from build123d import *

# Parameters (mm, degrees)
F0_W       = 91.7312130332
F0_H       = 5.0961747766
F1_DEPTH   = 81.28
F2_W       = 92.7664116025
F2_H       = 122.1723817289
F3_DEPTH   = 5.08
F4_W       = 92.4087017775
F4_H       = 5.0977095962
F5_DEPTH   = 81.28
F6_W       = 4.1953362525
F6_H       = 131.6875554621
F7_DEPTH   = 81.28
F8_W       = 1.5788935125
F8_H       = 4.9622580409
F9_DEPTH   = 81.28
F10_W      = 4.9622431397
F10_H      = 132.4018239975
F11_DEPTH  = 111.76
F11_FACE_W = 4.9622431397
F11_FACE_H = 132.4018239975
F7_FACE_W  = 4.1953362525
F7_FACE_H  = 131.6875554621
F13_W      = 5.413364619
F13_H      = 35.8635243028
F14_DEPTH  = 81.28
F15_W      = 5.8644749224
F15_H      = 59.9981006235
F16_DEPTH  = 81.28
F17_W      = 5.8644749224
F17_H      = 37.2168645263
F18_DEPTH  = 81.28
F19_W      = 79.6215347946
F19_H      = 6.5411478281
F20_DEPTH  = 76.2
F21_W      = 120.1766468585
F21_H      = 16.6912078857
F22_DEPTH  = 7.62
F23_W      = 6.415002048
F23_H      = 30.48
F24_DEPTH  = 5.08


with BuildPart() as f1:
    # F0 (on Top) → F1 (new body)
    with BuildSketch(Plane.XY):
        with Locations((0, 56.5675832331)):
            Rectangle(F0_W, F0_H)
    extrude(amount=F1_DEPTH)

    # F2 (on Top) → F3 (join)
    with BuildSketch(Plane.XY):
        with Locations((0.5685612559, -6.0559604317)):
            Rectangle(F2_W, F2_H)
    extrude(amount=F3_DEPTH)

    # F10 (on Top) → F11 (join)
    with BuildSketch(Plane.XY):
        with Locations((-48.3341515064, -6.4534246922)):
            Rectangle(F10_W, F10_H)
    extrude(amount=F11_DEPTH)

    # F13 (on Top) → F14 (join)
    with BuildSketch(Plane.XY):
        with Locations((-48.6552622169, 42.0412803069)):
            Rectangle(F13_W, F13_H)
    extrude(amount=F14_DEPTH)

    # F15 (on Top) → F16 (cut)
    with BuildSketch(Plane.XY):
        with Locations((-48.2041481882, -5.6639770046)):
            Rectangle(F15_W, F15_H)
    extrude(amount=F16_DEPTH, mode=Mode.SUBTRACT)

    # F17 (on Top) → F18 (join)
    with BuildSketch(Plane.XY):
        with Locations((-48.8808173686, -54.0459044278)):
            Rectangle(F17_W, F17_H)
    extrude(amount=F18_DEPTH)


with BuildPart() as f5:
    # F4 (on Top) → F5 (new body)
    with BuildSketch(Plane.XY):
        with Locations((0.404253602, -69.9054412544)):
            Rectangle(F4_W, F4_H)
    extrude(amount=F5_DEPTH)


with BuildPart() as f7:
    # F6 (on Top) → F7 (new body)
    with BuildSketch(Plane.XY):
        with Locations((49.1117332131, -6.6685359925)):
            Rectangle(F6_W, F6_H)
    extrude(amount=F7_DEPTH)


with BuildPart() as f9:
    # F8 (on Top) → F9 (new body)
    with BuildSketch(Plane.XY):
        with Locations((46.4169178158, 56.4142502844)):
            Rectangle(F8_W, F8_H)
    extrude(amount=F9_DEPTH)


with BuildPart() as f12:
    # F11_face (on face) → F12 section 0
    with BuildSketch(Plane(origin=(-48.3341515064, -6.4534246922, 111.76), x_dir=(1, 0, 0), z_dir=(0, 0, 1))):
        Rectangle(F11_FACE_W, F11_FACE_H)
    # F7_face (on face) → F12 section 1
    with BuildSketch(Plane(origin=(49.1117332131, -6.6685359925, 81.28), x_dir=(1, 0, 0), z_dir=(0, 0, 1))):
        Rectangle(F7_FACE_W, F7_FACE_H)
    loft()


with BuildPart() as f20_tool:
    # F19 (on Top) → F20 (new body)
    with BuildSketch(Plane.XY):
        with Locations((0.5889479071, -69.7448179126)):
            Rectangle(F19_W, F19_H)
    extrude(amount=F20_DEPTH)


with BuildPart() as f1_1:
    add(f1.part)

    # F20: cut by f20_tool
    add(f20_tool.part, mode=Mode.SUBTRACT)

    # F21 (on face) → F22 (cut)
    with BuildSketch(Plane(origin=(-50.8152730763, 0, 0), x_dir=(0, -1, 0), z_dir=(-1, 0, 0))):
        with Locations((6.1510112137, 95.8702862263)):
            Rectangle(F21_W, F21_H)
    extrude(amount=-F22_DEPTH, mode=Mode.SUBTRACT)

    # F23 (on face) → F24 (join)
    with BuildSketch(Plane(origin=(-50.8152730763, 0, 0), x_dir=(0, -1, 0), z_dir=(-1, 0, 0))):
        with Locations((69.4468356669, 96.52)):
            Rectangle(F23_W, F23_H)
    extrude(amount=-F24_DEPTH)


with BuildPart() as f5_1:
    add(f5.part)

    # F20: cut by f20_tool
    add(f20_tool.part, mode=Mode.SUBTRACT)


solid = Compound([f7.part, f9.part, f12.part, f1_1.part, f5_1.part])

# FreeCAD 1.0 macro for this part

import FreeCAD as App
import Part
import Sketcher
Q = App.Units.Quantity

doc = App.newDocument("Part")
body = doc.addObject("PartDesign::Body", "Body")

sketch1 = body.newObject("Sketcher::SketchObject", "Sketch")
sketch1.AttachmentSupport = (doc.getObject("XY_Plane"), [""])
sketch1.MapMode = "FlatFace"
sketch1.addGeometry(Part.LineSegment(App.Vector(-46, 59, 0), App.Vector(-46, 54, 0)), False)
sketch1.addGeometry(Part.LineSegment(App.Vector(-46, 54, 0), App.Vector(46, 54, 0)), False)
sketch1.addGeometry(Part.LineSegment(App.Vector(46, 54, 0), App.Vector(46, 59, 0)), False)
sketch1.addGeometry(Part.LineSegment(App.Vector(46, 59, 0), App.Vector(-46, 59, 0)), False)
sketch1.addConstraint(Sketcher.Constraint("Coincident", 0, 2, 1, 1))
sketch1.addConstraint(Sketcher.Constraint("Coincident", 1, 2, 2, 1))
sketch1.addConstraint(Sketcher.Constraint("Coincident", 2, 2, 3, 1))
sketch1.addConstraint(Sketcher.Constraint("Coincident", 3, 2, 0, 1))
sketch1.addConstraint(Sketcher.Constraint("Vertical", 0))
sketch1.addConstraint(Sketcher.Constraint("Horizontal", 1))
sketch1.addConstraint(Sketcher.Constraint("Vertical", 2))
sketch1.addConstraint(Sketcher.Constraint("Horizontal", 3))
sketch1.addConstraint(Sketcher.Constraint("DistanceX", 1, 1, 1, 2, Q("91.731213 mm")))
sketch1.addConstraint(Sketcher.Constraint("DistanceY", 0, 2, 0, 1, Q("5.096175 mm")))
sketch1.addConstraint(Sketcher.Constraint("DistanceY", -1, 1, 2, 2, Q("59.115671 mm")))
sketch1.addConstraint(Sketcher.Constraint("DistanceX", 0, 2, -1, 1, Q("45.865607 mm")))
pad1 = body.newObject("PartDesign::Pad", "Pad")
pad1.Profile = sketch1
pad1.Length = Q("3.2 in")

sketch2 = body.newObject("Sketcher::SketchObject", "Sketch001")
sketch2.AttachmentSupport = (doc.getObject("XY_Plane"), [""])
sketch2.MapMode = "FlatFace"
sketch2.addGeometry(Part.LineSegment(App.Vector(-46, 55, 0), App.Vector(-46, -67, 0)), False)
sketch2.addGeometry(Part.LineSegment(App.Vector(-46, -67, 0), App.Vector(47, -67, 0)), False)
sketch2.addGeometry(Part.LineSegment(App.Vector(47, -67, 0), App.Vector(47, 55, 0)), False)
sketch2.addGeometry(Part.LineSegment(App.Vector(47, 55, 0), App.Vector(-46, 55, 0)), False)
sketch2.addConstraint(Sketcher.Constraint("Coincident", 0, 2, 1, 1))
sketch2.addConstraint(Sketcher.Constraint("Coincident", 1, 2, 2, 1))
sketch2.addConstraint(Sketcher.Constraint("Coincident", 2, 2, 3, 1))
sketch2.addConstraint(Sketcher.Constraint("Coincident", 3, 2, 0, 1))
sketch2.addConstraint(Sketcher.Constraint("Vertical", 0))
sketch2.addConstraint(Sketcher.Constraint("Horizontal", 1))
sketch2.addConstraint(Sketcher.Constraint("Vertical", 2))
sketch2.addConstraint(Sketcher.Constraint("Horizontal", 3))
sketch2.addConstraint(Sketcher.Constraint("DistanceX", 1, 1, 1, 2, Q("92.766412 mm")))
sketch2.addConstraint(Sketcher.Constraint("DistanceY", 0, 2, 0, 1, Q("122.172382 mm")))
sketch2.addConstraint(Sketcher.Constraint("DistanceY", 0, 2, -1, 1, Q("67.142151 mm")))
sketch2.addConstraint(Sketcher.Constraint("DistanceX", 0, 2, -1, 1, Q("45.814645 mm")))
pad2 = body.newObject("PartDesign::Pad", "Pad001")
pad2.Profile = sketch2
pad2.Length = Q("0.2 in")

sketch3 = body.newObject("Sketcher::SketchObject", "Sketch002")
sketch3.AttachmentSupport = (doc.getObject("XY_Plane"), [""])
sketch3.MapMode = "FlatFace"
sketch3.addGeometry(Part.LineSegment(App.Vector(-50.8, 59.7, 0), App.Vector(-50.8, -72.7, 0)), False)
sketch3.addGeometry(Part.LineSegment(App.Vector(-50.8, -72.7, 0), App.Vector(-45.9, -72.7, 0)), False)
sketch3.addGeometry(Part.LineSegment(App.Vector(-45.9, -72.7, 0), App.Vector(-45.9, 59.7, 0)), False)
sketch3.addGeometry(Part.LineSegment(App.Vector(-45.9, 59.7, 0), App.Vector(-50.8, 59.7, 0)), False)
sketch3.addConstraint(Sketcher.Constraint("Coincident", 0, 2, 1, 1))
sketch3.addConstraint(Sketcher.Constraint("Coincident", 1, 2, 2, 1))
sketch3.addConstraint(Sketcher.Constraint("Coincident", 2, 2, 3, 1))
sketch3.addConstraint(Sketcher.Constraint("Coincident", 3, 2, 0, 1))
sketch3.addConstraint(Sketcher.Constraint("Vertical", 0))
sketch3.addConstraint(Sketcher.Constraint("Horizontal", 1))
sketch3.addConstraint(Sketcher.Constraint("Vertical", 2))
sketch3.addConstraint(Sketcher.Constraint("Horizontal", 3))
sketch3.addConstraint(Sketcher.Constraint("DistanceX", 1, 1, 1, 2, Q("4.962243 mm")))
sketch3.addConstraint(Sketcher.Constraint("DistanceY", 0, 2, 0, 1, Q("132.401824 mm")))
sketch3.addConstraint(Sketcher.Constraint("DistanceX", 1, 2, -1, 1, Q("45.85303 mm")))
sketch3.addConstraint(Sketcher.Constraint("DistanceY", 0, 2, -1, 1, Q("72.654337 mm")))
pad3 = body.newObject("PartDesign::Pad", "Pad002")
pad3.Profile = sketch3
pad3.Length = Q("4.4 in")

sketch4 = body.newObject("Sketcher::SketchObject", "Sketch003")
sketch4.AttachmentSupport = (doc.getObject("XY_Plane"), [""])
sketch4.MapMode = "FlatFace"
sketch4.addGeometry(Part.LineSegment(App.Vector(-51, 60, 0), App.Vector(-51, 24, 0)), False)
sketch4.addGeometry(Part.LineSegment(App.Vector(-51, 24, 0), App.Vector(-46, 24, 0)), False)
sketch4.addGeometry(Part.LineSegment(App.Vector(-46, 24, 0), App.Vector(-46, 60, 0)), False)
sketch4.addGeometry(Part.LineSegment(App.Vector(-46, 60, 0), App.Vector(-51, 60, 0)), False)
sketch4.addConstraint(Sketcher.Constraint("Coincident", 0, 2, 1, 1))
sketch4.addConstraint(Sketcher.Constraint("Coincident", 1, 2, 2, 1))
sketch4.addConstraint(Sketcher.Constraint("Coincident", 2, 2, 3, 1))
sketch4.addConstraint(Sketcher.Constraint("Coincident", 3, 2, 0, 1))
sketch4.addConstraint(Sketcher.Constraint("Vertical", 0))
sketch4.addConstraint(Sketcher.Constraint("Horizontal", 1))
sketch4.addConstraint(Sketcher.Constraint("Vertical", 2))
sketch4.addConstraint(Sketcher.Constraint("Horizontal", 3))
sketch4.addConstraint(Sketcher.Constraint("DistanceX", 1, 1, 1, 2, Q("5.413365 mm")))
sketch4.addConstraint(Sketcher.Constraint("DistanceY", 0, 2, 0, 1, Q("35.863524 mm")))
sketch4.addConstraint(Sketcher.Constraint("DistanceY", -1, 1, 0, 2, Q("24.109518 mm")))
sketch4.addConstraint(Sketcher.Constraint("DistanceX", 1, 2, -1, 1, Q("45.94858 mm")))
pad4 = body.newObject("PartDesign::Pad", "Pad003")
pad4.Profile = sketch4
pad4.Length = Q("3.2 in")

sketch5 = body.newObject("Sketcher::SketchObject", "Sketch004")
sketch5.AttachmentSupport = (doc.getObject("XY_Plane"), [""])
sketch5.MapMode = "FlatFace"
sketch5.addGeometry(Part.LineSegment(App.Vector(-51, 24, 0), App.Vector(-51, -36, 0)), False)
sketch5.addGeometry(Part.LineSegment(App.Vector(-51, -36, 0), App.Vector(-45, -36, 0)), False)
sketch5.addGeometry(Part.LineSegment(App.Vector(-45, -36, 0), App.Vector(-45, 24, 0)), False)
sketch5.addGeometry(Part.LineSegment(App.Vector(-45, 24, 0), App.Vector(-51, 24, 0)), False)
sketch5.addConstraint(Sketcher.Constraint("Coincident", 0, 2, 1, 1))
sketch5.addConstraint(Sketcher.Constraint("Coincident", 1, 2, 2, 1))
sketch5.addConstraint(Sketcher.Constraint("Coincident", 2, 2, 3, 1))
sketch5.addConstraint(Sketcher.Constraint("Coincident", 3, 2, 0, 1))
sketch5.addConstraint(Sketcher.Constraint("Vertical", 0))
sketch5.addConstraint(Sketcher.Constraint("Horizontal", 1))
sketch5.addConstraint(Sketcher.Constraint("Vertical", 2))
sketch5.addConstraint(Sketcher.Constraint("Horizontal", 3))
sketch5.addConstraint(Sketcher.Constraint("DistanceY", 0, 2, 0, 1, Q("59.998101 mm")))
sketch5.addConstraint(Sketcher.Constraint("DistanceX", 1, 1, 1, 2, Q("5.864475 mm")))
sketch5.addConstraint(Sketcher.Constraint("DistanceX", 1, 2, -1, 1, Q("45.271911 mm")))
sketch5.addConstraint(Sketcher.Constraint("DistanceY", 0, 2, -1, 1, Q("35.663027 mm")))
pocket1 = body.newObject("PartDesign::Pocket", "Pocket")
pocket1.Profile = sketch5
pocket1.Length = Q("3.2 in")
pocket1.Reversed = True

sketch6 = body.newObject("Sketcher::SketchObject", "Sketch005")
sketch6.AttachmentSupport = (doc.getObject("XY_Plane"), [""])
sketch6.MapMode = "FlatFace"
sketch6.addGeometry(Part.LineSegment(App.Vector(-52, -35, 0), App.Vector(-52, -73, 0)), False)
sketch6.addGeometry(Part.LineSegment(App.Vector(-52, -73, 0), App.Vector(-46, -73, 0)), False)
sketch6.addGeometry(Part.LineSegment(App.Vector(-46, -73, 0), App.Vector(-46, -35, 0)), False)
sketch6.addGeometry(Part.LineSegment(App.Vector(-46, -35, 0), App.Vector(-52, -35, 0)), False)
sketch6.addConstraint(Sketcher.Constraint("Coincident", 0, 2, 1, 1))
sketch6.addConstraint(Sketcher.Constraint("Coincident", 1, 2, 2, 1))
sketch6.addConstraint(Sketcher.Constraint("Coincident", 2, 2, 3, 1))
sketch6.addConstraint(Sketcher.Constraint("Coincident", 3, 2, 0, 1))
sketch6.addConstraint(Sketcher.Constraint("Vertical", 0))
sketch6.addConstraint(Sketcher.Constraint("Horizontal", 1))
sketch6.addConstraint(Sketcher.Constraint("Vertical", 2))
sketch6.addConstraint(Sketcher.Constraint("Horizontal", 3))
sketch6.addConstraint(Sketcher.Constraint("DistanceX", 1, 1, 1, 2, Q("5.864475 mm")))
sketch6.addConstraint(Sketcher.Constraint("DistanceY", 0, 2, 0, 1, Q("37.216865 mm")))
sketch6.addConstraint(Sketcher.Constraint("DistanceX", 1, 2, -1, 1, Q("45.94858 mm")))
sketch6.addConstraint(Sketcher.Constraint("DistanceY", 0, 2, -1, 1, Q("72.654337 mm")))
pad5 = body.newObject("PartDesign::Pad", "Pad004")
pad5.Profile = sketch6
pad5.Length = Q("3.2 in")
body2 = doc.addObject("PartDesign::Body", "Body001")

sketch7 = body2.newObject("Sketcher::SketchObject", "Sketch006")
sketch7.AttachmentSupport = (doc.getObject("XY_Plane001"), [""])
sketch7.MapMode = "FlatFace"
sketch7.addGeometry(Part.LineSegment(App.Vector(-46, -67, 0), App.Vector(-46, -72, 0)), False)
sketch7.addGeometry(Part.LineSegment(App.Vector(-46, -72, 0), App.Vector(47, -72, 0)), False)
sketch7.addGeometry(Part.LineSegment(App.Vector(47, -72, 0), App.Vector(47, -67, 0)), False)
sketch7.addGeometry(Part.LineSegment(App.Vector(47, -67, 0), App.Vector(-46, -67, 0)), False)
sketch7.addConstraint(Sketcher.Constraint("Coincident", 0, 2, 1, 1))
sketch7.addConstraint(Sketcher.Constraint("Coincident", 1, 2, 2, 1))
sketch7.addConstraint(Sketcher.Constraint("Coincident", 2, 2, 3, 1))
sketch7.addConstraint(Sketcher.Constraint("Coincident", 3, 2, 0, 1))
sketch7.addConstraint(Sketcher.Constraint("Vertical", 0))
sketch7.addConstraint(Sketcher.Constraint("Horizontal", 1))
sketch7.addConstraint(Sketcher.Constraint("Vertical", 2))
sketch7.addConstraint(Sketcher.Constraint("Horizontal", 3))
sketch7.addConstraint(Sketcher.Constraint("DistanceX", 1, 1, 1, 2, Q("92.408702 mm")))
sketch7.addConstraint(Sketcher.Constraint("DistanceY", 0, 2, 0, 1, Q("5.09771 mm")))
sketch7.addConstraint(Sketcher.Constraint("DistanceX", 0, 2, -1, 1, Q("45.800097 mm")))
sketch7.addConstraint(Sketcher.Constraint("DistanceY", 0, 2, -1, 1, Q("72.454296 mm")))
pad6 = body2.newObject("PartDesign::Pad", "Pad005")
pad6.Profile = sketch7
pad6.Length = Q("3.2 in")
body3 = doc.addObject("PartDesign::Body", "Body002")

sketch8 = body3.newObject("Sketcher::SketchObject", "Sketch007")
sketch8.AttachmentSupport = (doc.getObject("XY_Plane002"), [""])
sketch8.MapMode = "FlatFace"
sketch8.addGeometry(Part.LineSegment(App.Vector(47, 59.2, 0), App.Vector(47, -72.5, 0)), False)
sketch8.addGeometry(Part.LineSegment(App.Vector(47, -72.5, 0), App.Vector(51.2, -72.5, 0)), False)
sketch8.addGeometry(Part.LineSegment(App.Vector(51.2, -72.5, 0), App.Vector(51.2, 59.2, 0)), False)
sketch8.addGeometry(Part.LineSegment(App.Vector(51.2, 59.2, 0), App.Vector(47, 59.2, 0)), False)
sketch8.addConstraint(Sketcher.Constraint("Coincident", 0, 2, 1, 1))
sketch8.addConstraint(Sketcher.Constraint("Coincident", 1, 2, 2, 1))
sketch8.addConstraint(Sketcher.Constraint("Coincident", 2, 2, 3, 1))
sketch8.addConstraint(Sketcher.Constraint("Coincident", 3, 2, 0, 1))
sketch8.addConstraint(Sketcher.Constraint("Vertical", 0))
sketch8.addConstraint(Sketcher.Constraint("Horizontal", 1))
sketch8.addConstraint(Sketcher.Constraint("Vertical", 2))
sketch8.addConstraint(Sketcher.Constraint("Horizontal", 3))
sketch8.addConstraint(Sketcher.Constraint("DistanceX", -1, 1, 1, 2, Q("51.209401 mm")))
sketch8.addConstraint(Sketcher.Constraint("DistanceX", 1, 1, 1, 2, Q("4.195336 mm")))
sketch8.addConstraint(Sketcher.Constraint("DistanceY", 0, 2, 0, 1, Q("131.687555 mm")))
sketch8.addConstraint(Sketcher.Constraint("DistanceY", -1, 1, 2, 2, Q("59.175242 mm")))
pad7 = body3.newObject("PartDesign::Pad", "Pad006")
pad7.Profile = sketch8
pad7.Length = Q("3.2 in")
body4 = doc.addObject("PartDesign::Body", "Body003")

sketch9 = body4.newObject("Sketcher::SketchObject", "Sketch008")
sketch9.AttachmentSupport = (doc.getObject("XY_Plane003"), [""])
sketch9.MapMode = "FlatFace"
sketch9.addGeometry(Part.LineSegment(App.Vector(45.6, 58.9, 0), App.Vector(45.6, 53.9, 0)), False)
sketch9.addGeometry(Part.LineSegment(App.Vector(45.6, 53.9, 0), App.Vector(47.2, 53.9, 0)), False)
sketch9.addGeometry(Part.LineSegment(App.Vector(47.2, 53.9, 0), App.Vector(47.2, 58.9, 0)), False)
sketch9.addGeometry(Part.LineSegment(App.Vector(47.2, 58.9, 0), App.Vector(45.6, 58.9, 0)), False)
sketch9.addConstraint(Sketcher.Constraint("Coincident", 0, 2, 1, 1))
sketch9.addConstraint(Sketcher.Constraint("Coincident", 1, 2, 2, 1))
sketch9.addConstraint(Sketcher.Constraint("Coincident", 2, 2, 3, 1))
sketch9.addConstraint(Sketcher.Constraint("Coincident", 3, 2, 0, 1))
sketch9.addConstraint(Sketcher.Constraint("Vertical", 0))
sketch9.addConstraint(Sketcher.Constraint("Horizontal", 1))
sketch9.addConstraint(Sketcher.Constraint("Vertical", 2))
sketch9.addConstraint(Sketcher.Constraint("Horizontal", 3))
sketch9.addConstraint(Sketcher.Constraint("DistanceY", 0, 2, 0, 1, Q("4.962258 mm")))
sketch9.addConstraint(Sketcher.Constraint("DistanceX", 1, 1, 1, 2, Q("1.578894 mm")))
sketch9.addConstraint(Sketcher.Constraint("DistanceX", -1, 1, 0, 2, Q("45.627471 mm")))
sketch9.addConstraint(Sketcher.Constraint("DistanceY", -1, 1, 0, 2, Q("53.933121 mm")))
pad8 = body4.newObject("PartDesign::Pad", "Pad007")
pad8.Profile = sketch9
pad8.Length = Q("3.2 in")
body5 = doc.addObject("PartDesign::Body", "Body004")

sketch10 = body5.newObject("Sketcher::SketchObject", "Sketch009")
sketch10.AttachmentSupport = (doc.getObject("XY_Plane004"), [""])
sketch10.MapMode = "FlatFace"
sketch10.AttachmentOffset = App.Placement(App.Vector(0, 0, 4.4 * 25.4), App.Rotation())
sketch10.addGeometry(Part.LineSegment(App.Vector(-50.8, 59.7, 0), App.Vector(-50.8, -72.7, 0)), False)
sketch10.addGeometry(Part.LineSegment(App.Vector(-50.8, -72.7, 0), App.Vector(-45.9, -72.7, 0)), False)
sketch10.addGeometry(Part.LineSegment(App.Vector(-45.9, -72.7, 0), App.Vector(-45.9, 59.7, 0)), False)
sketch10.addGeometry(Part.LineSegment(App.Vector(-45.9, 59.7, 0), App.Vector(-50.8, 59.7, 0)), False)
sketch10.addConstraint(Sketcher.Constraint("Coincident", 0, 2, 1, 1))
sketch10.addConstraint(Sketcher.Constraint("Coincident", 1, 2, 2, 1))
sketch10.addConstraint(Sketcher.Constraint("Coincident", 2, 2, 3, 1))
sketch10.addConstraint(Sketcher.Constraint("Coincident", 3, 2, 0, 1))
sketch10.addConstraint(Sketcher.Constraint("Vertical", 0))
sketch10.addConstraint(Sketcher.Constraint("Horizontal", 1))
sketch10.addConstraint(Sketcher.Constraint("Vertical", 2))
sketch10.addConstraint(Sketcher.Constraint("Horizontal", 3))
sketch10.addConstraint(Sketcher.Constraint("DistanceX", 1, 1, 1, 2, Q("4.962243 mm")))
sketch10.addConstraint(Sketcher.Constraint("DistanceY", 0, 2, 0, 1, Q("132.401824 mm")))
sketch10.addConstraint(Sketcher.Constraint("DistanceX", 1, 2, -1, 1, Q("45.85303 mm")))
sketch10.addConstraint(Sketcher.Constraint("DistanceY", 0, 2, -1, 1, Q("72.654337 mm")))

sketch11 = body5.newObject("Sketcher::SketchObject", "Sketch010")
sketch11.AttachmentSupport = (doc.getObject("XY_Plane004"), [""])
sketch11.MapMode = "FlatFace"
sketch11.AttachmentOffset = App.Placement(App.Vector(0, 0, 3.2 * 25.4), App.Rotation())
sketch11.addGeometry(Part.LineSegment(App.Vector(47, 59.2, 0), App.Vector(47, -72.5, 0)), False)
sketch11.addGeometry(Part.LineSegment(App.Vector(47, -72.5, 0), App.Vector(51.2, -72.5, 0)), False)
sketch11.addGeometry(Part.LineSegment(App.Vector(51.2, -72.5, 0), App.Vector(51.2, 59.2, 0)), False)
sketch11.addGeometry(Part.LineSegment(App.Vector(51.2, 59.2, 0), App.Vector(47, 59.2, 0)), False)
sketch11.addConstraint(Sketcher.Constraint("Coincident", 0, 2, 1, 1))
sketch11.addConstraint(Sketcher.Constraint("Coincident", 1, 2, 2, 1))
sketch11.addConstraint(Sketcher.Constraint("Coincident", 2, 2, 3, 1))
sketch11.addConstraint(Sketcher.Constraint("Coincident", 3, 2, 0, 1))
sketch11.addConstraint(Sketcher.Constraint("Vertical", 0))
sketch11.addConstraint(Sketcher.Constraint("Horizontal", 1))
sketch11.addConstraint(Sketcher.Constraint("Vertical", 2))
sketch11.addConstraint(Sketcher.Constraint("Horizontal", 3))
sketch11.addConstraint(Sketcher.Constraint("DistanceX", -1, 1, 1, 2, Q("51.209401 mm")))
sketch11.addConstraint(Sketcher.Constraint("DistanceX", 1, 1, 1, 2, Q("4.195336 mm")))
sketch11.addConstraint(Sketcher.Constraint("DistanceY", 0, 2, 0, 1, Q("131.687555 mm")))
sketch11.addConstraint(Sketcher.Constraint("DistanceY", -1, 1, 2, 2, Q("59.175242 mm")))

additiveloft = body5.newObject("PartDesign::AdditiveLoft", "AdditiveLoft")
additiveloft.Profile = sketch10
additiveloft.Sections = [sketch11]
body6 = doc.addObject("PartDesign::Body", "Body005")

sketch12 = body6.newObject("Sketcher::SketchObject", "Sketch011")
sketch12.AttachmentSupport = (doc.getObject("XY_Plane005"), [""])
sketch12.MapMode = "FlatFace"
sketch12.addGeometry(Part.LineSegment(App.Vector(-39, -66, 0), App.Vector(-39, -73, 0)), False)
sketch12.addGeometry(Part.LineSegment(App.Vector(-39, -73, 0), App.Vector(40, -73, 0)), False)
sketch12.addGeometry(Part.LineSegment(App.Vector(40, -73, 0), App.Vector(40, -66, 0)), False)
sketch12.addGeometry(Part.LineSegment(App.Vector(40, -66, 0), App.Vector(-39, -66, 0)), False)
sketch12.addConstraint(Sketcher.Constraint("Coincident", 0, 2, 1, 1))
sketch12.addConstraint(Sketcher.Constraint("Coincident", 1, 2, 2, 1))
sketch12.addConstraint(Sketcher.Constraint("Coincident", 2, 2, 3, 1))
sketch12.addConstraint(Sketcher.Constraint("Coincident", 3, 2, 0, 1))
sketch12.addConstraint(Sketcher.Constraint("Vertical", 0))
sketch12.addConstraint(Sketcher.Constraint("Horizontal", 1))
sketch12.addConstraint(Sketcher.Constraint("Vertical", 2))
sketch12.addConstraint(Sketcher.Constraint("Horizontal", 3))
sketch12.addConstraint(Sketcher.Constraint("DistanceX", 1, 1, 1, 2, Q("79.621535 mm")))
sketch12.addConstraint(Sketcher.Constraint("DistanceY", 0, 2, 0, 1, Q("6.541148 mm")))
sketch12.addConstraint(Sketcher.Constraint("DistanceX", 0, 2, -1, 1, Q("39.221819 mm")))
sketch12.addConstraint(Sketcher.Constraint("DistanceY", 0, 2, -1, 1, Q("73.015392 mm")))
pad9 = body6.newObject("PartDesign::Pad", "Pad008")
pad9.Profile = sketch12
pad9.Length = Q("3 in")
doc.recompute()

body7 = doc.addObject("PartDesign::Body", "Body006")
body7.BaseFeature = body6
boolean = body.newObject("PartDesign::Boolean", "Boolean")
boolean.Type = "Cut"
boolean.addObjects([body7])
doc.recompute()

sketch13 = body.newObject("Sketcher::SketchObject", "Sketch012")
sketch13.AttachmentSupport = (doc.getObject("YZ_Plane"), [""])
sketch13.MapMode = "FlatFace"
sketch13.AttachmentOffset = App.Placement(App.Vector(0, 0, -50.815273), App.Rotation())
sketch13.addGeometry(Part.LineSegment(App.Vector(54, 104, 0), App.Vector(54, 88, 0)), False)
sketch13.addGeometry(Part.LineSegment(App.Vector(54, 88, 0), App.Vector(-66, 88, 0)), False)
sketch13.addGeometry(Part.LineSegment(App.Vector(-66, 88, 0), App.Vector(-66, 104, 0)), False)
sketch13.addGeometry(Part.LineSegment(App.Vector(-66, 104, 0), App.Vector(54, 104, 0)), False)
sketch13.addConstraint(Sketcher.Constraint("Coincident", 0, 2, 1, 1))
sketch13.addConstraint(Sketcher.Constraint("Coincident", 1, 2, 2, 1))
sketch13.addConstraint(Sketcher.Constraint("Coincident", 2, 2, 3, 1))
sketch13.addConstraint(Sketcher.Constraint("Coincident", 3, 2, 0, 1))
sketch13.addConstraint(Sketcher.Constraint("Vertical", 0))
sketch13.addConstraint(Sketcher.Constraint("Horizontal", 1))
sketch13.addConstraint(Sketcher.Constraint("Vertical", 2))
sketch13.addConstraint(Sketcher.Constraint("Horizontal", 3))
sketch13.addConstraint(Sketcher.Constraint("DistanceX", 1, 2, 1, 1, Q("120.176647 mm")))
sketch13.addConstraint(Sketcher.Constraint("DistanceY", 0, 2, 0, 1, Q("16.691208 mm")))
sketch13.addConstraint(Sketcher.Constraint("DistanceY", -1, 1, 2, 2, Q("104.21589 mm")))
sketch13.addConstraint(Sketcher.Constraint("DistanceX", -1, 1, 0, 2, Q("53.937312 mm")))
pocket2 = body.newObject("PartDesign::Pocket", "Pocket001")
pocket2.Profile = sketch13
pocket2.Length = Q("0.3 in")
pocket2.Reversed = True

sketch14 = body.newObject("Sketcher::SketchObject", "Sketch013")
sketch14.AttachmentSupport = (doc.getObject("YZ_Plane"), [""])
sketch14.MapMode = "FlatFace"
sketch14.AttachmentOffset = App.Placement(App.Vector(0, 0, -50.815273), App.Rotation())
sketch14.addGeometry(Part.LineSegment(App.Vector(-66, 112, 0), App.Vector(-66, 81, 0)), False)
sketch14.addGeometry(Part.LineSegment(App.Vector(-66, 81, 0), App.Vector(-73, 81, 0)), False)
sketch14.addGeometry(Part.LineSegment(App.Vector(-73, 81, 0), App.Vector(-73, 112, 0)), False)
sketch14.addGeometry(Part.LineSegment(App.Vector(-73, 112, 0), App.Vector(-66, 112, 0)), False)
sketch14.addConstraint(Sketcher.Constraint("Coincident", 0, 2, 1, 1))
sketch14.addConstraint(Sketcher.Constraint("Coincident", 1, 2, 2, 1))
sketch14.addConstraint(Sketcher.Constraint("Coincident", 2, 2, 3, 1))
sketch14.addConstraint(Sketcher.Constraint("Coincident", 3, 2, 0, 1))
sketch14.addConstraint(Sketcher.Constraint("Vertical", 0))
sketch14.addConstraint(Sketcher.Constraint("Horizontal", 1))
sketch14.addConstraint(Sketcher.Constraint("Vertical", 2))
sketch14.addConstraint(Sketcher.Constraint("Horizontal", 3))
sketch14.addConstraint(Sketcher.Constraint("DistanceY", 0, 2, 0, 1, Q("1.2 in")))
sketch14.addConstraint(Sketcher.Constraint("DistanceY", -1, 1, 0, 2, Q("3.2 in")))
sketch14.addConstraint(Sketcher.Constraint("DistanceX", 1, 2, 1, 1, Q("6.415002 mm")))
sketch14.addConstraint(Sketcher.Constraint("DistanceX", 0, 2, -1, 1, Q("66.239335 mm")))
pad10 = body.newObject("PartDesign::Pad", "Pad009")
pad10.Profile = sketch14
pad10.Length = Q("0.2 in")
doc.recompute()

boolean2 = body2.newObject("PartDesign::Boolean", "Boolean001")
boolean2.Type = "Cut"
boolean2.addObjects([body6])

doc.recompute()
